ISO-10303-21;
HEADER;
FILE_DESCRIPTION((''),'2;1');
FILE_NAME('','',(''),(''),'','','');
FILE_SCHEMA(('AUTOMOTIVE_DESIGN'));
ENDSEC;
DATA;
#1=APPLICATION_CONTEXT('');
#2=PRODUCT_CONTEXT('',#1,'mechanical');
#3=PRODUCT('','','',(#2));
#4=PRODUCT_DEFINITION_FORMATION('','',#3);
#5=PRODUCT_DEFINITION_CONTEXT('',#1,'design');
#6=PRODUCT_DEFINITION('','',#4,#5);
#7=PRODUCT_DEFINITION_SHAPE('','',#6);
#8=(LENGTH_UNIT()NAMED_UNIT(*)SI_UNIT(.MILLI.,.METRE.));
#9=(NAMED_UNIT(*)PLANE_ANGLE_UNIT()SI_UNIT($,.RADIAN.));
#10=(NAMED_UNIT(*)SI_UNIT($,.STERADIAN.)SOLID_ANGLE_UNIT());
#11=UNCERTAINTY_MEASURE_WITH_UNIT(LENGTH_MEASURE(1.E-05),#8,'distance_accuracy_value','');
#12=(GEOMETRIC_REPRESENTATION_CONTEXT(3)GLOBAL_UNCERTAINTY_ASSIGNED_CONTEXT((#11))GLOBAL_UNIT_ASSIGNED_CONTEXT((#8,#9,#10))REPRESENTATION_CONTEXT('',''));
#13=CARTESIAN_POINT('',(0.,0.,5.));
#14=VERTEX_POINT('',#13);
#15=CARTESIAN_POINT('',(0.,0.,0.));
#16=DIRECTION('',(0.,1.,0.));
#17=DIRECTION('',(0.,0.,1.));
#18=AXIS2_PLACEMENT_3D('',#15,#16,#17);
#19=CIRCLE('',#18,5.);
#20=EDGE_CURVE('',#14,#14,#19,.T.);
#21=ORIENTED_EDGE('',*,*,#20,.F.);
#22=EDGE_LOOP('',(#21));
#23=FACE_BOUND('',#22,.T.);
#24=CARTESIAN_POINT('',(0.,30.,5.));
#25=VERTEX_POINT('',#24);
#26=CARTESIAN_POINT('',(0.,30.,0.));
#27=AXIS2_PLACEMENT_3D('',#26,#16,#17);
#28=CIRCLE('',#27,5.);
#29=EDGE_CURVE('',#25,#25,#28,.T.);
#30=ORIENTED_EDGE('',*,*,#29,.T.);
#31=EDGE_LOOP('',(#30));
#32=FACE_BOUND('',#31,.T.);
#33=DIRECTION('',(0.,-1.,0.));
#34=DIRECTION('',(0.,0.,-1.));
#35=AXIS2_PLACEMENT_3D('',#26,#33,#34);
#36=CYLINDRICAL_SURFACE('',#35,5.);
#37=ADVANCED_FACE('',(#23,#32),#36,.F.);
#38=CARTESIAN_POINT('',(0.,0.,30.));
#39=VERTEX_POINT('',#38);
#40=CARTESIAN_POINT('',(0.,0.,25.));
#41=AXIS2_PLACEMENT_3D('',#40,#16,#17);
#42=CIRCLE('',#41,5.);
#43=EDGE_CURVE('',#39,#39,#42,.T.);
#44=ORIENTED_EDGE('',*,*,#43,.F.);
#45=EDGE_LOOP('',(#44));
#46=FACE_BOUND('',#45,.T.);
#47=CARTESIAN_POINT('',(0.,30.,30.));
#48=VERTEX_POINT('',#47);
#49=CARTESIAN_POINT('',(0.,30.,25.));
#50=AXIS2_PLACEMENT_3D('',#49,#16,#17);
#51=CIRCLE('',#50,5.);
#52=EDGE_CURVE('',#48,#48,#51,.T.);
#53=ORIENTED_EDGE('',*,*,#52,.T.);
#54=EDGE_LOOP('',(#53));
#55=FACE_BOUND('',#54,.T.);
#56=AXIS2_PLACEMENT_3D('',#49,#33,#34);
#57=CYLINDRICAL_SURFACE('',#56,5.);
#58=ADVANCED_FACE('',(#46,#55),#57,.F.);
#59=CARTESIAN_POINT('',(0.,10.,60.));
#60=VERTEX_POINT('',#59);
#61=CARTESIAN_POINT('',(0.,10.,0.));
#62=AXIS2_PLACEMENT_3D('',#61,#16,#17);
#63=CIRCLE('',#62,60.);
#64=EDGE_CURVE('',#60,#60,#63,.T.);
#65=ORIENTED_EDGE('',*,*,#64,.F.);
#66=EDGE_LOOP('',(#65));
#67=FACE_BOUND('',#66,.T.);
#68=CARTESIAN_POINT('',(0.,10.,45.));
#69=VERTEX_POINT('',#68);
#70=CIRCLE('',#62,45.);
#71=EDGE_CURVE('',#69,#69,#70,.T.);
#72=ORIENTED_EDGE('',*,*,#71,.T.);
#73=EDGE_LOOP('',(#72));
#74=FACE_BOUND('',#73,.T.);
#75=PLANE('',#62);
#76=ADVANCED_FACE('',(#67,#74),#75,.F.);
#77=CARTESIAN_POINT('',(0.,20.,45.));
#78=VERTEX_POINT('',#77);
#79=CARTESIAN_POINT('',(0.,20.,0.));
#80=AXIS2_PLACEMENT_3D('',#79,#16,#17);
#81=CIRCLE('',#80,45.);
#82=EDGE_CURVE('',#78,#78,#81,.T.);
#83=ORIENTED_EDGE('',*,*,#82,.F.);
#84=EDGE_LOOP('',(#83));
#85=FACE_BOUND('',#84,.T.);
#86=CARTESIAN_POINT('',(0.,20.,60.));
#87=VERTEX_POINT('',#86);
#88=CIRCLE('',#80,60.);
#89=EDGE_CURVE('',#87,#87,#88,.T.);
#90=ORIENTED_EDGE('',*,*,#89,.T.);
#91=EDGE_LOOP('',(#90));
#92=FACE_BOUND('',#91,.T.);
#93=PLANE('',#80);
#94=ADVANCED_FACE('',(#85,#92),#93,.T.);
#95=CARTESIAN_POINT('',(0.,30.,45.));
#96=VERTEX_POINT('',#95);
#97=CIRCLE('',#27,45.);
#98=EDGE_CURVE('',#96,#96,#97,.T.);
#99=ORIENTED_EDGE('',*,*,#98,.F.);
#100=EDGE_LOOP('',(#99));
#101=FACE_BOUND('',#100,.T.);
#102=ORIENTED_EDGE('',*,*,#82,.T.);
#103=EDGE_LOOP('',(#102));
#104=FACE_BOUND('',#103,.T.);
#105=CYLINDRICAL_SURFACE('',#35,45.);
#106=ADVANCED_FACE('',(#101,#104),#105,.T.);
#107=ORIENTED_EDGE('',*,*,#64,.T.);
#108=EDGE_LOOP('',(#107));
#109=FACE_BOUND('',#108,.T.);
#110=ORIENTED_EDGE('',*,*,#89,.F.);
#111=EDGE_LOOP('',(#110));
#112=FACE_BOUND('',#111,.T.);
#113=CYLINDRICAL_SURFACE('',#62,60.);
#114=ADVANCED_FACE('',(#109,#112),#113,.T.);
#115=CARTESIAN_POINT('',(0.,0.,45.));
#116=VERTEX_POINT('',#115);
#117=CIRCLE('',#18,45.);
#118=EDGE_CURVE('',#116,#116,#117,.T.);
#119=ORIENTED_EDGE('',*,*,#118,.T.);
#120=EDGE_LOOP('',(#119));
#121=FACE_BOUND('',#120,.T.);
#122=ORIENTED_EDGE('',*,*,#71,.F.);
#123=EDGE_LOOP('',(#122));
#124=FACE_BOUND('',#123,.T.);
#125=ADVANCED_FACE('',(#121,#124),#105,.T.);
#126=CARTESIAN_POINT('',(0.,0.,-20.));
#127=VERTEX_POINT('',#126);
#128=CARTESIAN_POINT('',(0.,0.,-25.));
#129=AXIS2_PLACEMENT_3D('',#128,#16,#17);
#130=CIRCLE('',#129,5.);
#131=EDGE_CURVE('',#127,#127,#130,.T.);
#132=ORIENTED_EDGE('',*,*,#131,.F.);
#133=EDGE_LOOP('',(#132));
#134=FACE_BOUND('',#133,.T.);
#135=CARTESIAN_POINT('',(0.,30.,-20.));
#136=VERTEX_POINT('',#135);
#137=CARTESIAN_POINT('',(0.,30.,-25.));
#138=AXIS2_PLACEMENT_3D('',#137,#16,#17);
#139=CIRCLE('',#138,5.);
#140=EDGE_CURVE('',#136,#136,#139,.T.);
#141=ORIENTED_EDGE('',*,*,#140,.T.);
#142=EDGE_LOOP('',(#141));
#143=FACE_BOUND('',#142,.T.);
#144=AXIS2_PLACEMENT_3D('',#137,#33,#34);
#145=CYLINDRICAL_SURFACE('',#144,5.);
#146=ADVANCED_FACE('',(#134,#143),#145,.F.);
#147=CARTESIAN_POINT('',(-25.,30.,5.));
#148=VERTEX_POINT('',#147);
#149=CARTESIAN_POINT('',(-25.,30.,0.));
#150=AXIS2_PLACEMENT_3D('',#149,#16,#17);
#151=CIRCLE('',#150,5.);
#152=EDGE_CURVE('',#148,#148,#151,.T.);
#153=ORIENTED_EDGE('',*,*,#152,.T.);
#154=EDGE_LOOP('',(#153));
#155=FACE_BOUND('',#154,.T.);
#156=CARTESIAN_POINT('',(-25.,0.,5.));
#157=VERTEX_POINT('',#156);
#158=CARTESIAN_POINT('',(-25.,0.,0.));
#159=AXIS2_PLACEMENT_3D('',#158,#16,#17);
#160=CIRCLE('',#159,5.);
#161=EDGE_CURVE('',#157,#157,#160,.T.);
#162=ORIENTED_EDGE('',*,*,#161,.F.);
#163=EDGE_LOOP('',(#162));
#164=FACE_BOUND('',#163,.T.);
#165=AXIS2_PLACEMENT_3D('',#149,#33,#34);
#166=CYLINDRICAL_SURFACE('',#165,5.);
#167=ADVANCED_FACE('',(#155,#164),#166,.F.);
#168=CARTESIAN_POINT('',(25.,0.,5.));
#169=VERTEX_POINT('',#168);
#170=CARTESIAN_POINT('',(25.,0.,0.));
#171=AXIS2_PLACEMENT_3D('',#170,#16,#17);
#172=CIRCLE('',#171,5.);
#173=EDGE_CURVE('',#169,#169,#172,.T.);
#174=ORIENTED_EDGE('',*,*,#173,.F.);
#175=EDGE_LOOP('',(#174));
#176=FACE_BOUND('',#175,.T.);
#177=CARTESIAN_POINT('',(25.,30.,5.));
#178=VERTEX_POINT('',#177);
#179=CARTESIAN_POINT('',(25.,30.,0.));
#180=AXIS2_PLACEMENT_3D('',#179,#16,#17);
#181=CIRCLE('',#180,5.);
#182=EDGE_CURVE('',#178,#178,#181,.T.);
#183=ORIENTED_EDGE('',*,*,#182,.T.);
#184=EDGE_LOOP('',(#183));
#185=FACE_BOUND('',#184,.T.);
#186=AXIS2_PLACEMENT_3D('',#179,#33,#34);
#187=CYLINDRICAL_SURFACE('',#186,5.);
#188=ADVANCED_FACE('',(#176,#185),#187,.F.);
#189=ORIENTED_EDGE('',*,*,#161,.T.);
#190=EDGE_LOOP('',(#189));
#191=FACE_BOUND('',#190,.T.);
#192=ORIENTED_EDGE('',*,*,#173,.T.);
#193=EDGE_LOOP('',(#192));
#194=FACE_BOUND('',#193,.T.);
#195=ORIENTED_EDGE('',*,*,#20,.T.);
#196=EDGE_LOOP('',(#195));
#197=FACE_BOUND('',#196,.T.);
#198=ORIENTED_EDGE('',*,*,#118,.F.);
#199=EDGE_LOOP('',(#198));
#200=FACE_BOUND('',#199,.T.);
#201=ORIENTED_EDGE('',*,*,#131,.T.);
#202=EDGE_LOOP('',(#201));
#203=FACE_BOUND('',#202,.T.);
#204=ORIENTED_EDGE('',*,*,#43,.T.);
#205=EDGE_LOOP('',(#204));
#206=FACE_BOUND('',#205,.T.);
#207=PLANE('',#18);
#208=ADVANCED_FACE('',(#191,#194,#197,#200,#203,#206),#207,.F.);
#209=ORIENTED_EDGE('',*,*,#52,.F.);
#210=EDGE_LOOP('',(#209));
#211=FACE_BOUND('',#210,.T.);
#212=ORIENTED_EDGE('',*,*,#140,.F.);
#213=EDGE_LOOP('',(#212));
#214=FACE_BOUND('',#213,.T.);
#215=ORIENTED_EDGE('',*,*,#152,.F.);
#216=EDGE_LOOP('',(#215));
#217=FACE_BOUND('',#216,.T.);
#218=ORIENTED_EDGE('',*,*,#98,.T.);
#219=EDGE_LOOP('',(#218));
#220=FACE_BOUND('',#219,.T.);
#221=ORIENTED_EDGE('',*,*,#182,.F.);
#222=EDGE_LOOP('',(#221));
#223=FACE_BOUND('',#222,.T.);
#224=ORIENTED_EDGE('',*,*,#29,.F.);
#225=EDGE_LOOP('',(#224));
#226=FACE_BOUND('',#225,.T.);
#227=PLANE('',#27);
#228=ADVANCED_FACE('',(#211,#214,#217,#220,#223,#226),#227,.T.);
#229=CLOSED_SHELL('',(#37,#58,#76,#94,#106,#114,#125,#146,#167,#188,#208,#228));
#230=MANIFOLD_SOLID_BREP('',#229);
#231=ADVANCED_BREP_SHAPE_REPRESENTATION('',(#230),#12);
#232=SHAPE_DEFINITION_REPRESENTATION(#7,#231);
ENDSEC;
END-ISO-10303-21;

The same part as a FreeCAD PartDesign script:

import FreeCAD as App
import Part
import Sketcher

doc = App.newDocument("Part")
body = doc.addObject("PartDesign::Body", "Body")

# Sketch on XZ plane
sketch1 = doc.addObject("Sketcher::SketchObject", "Sketch")
body.addObject(sketch1)
sketch1.AttachmentSupport = (doc.XZ_Plane, [""])
sketch1.MapMode = "FlatFace"
sketch1.addGeometry([
    Part.Circle(App.Vector(0, 0, 0), App.Vector(0, 0, 1), 45),  # 0
    Part.Circle(App.Vector(0, 25, 0), App.Vector(0, 0, 1), 5),  # 1
    Part.Circle(App.Vector(-25, 0, 0), App.Vector(0, 0, 1), 5),  # 2
    Part.Circle(App.Vector(0, 0, 0), App.Vector(0, 0, 1), 5),  # 3
    Part.Circle(App.Vector(25, 0, 0), App.Vector(0, 0, 1), 5),  # 4
    Part.Circle(App.Vector(0, -25, 0), App.Vector(0, 0, 1), 5),  # 5
], False)
sketch1.addConstraint([
    Sketcher.Constraint("Coincident", 0, 3, -1, 1),
    Sketcher.Constraint("Coincident", 3, 3, -1, 1),
    Sketcher.Constraint("Equal", 1, 2),
    Sketcher.Constraint("Equal", 2, 3),
    Sketcher.Constraint("Equal", 3, 4),
    Sketcher.Constraint("Equal", 4, 5),
    Sketcher.Constraint("Symmetric", 2, 3, 4, 3, -1, 1),
    Sketcher.Constraint("Symmetric", 1, 3, 5, 3, -1, 1),
    Sketcher.Constraint("PointOnObject", 1, 3, -2),
    Sketcher.Constraint("PointOnObject", 2, 3, -1),
    Sketcher.Constraint("Diameter", 0, 90.0),
    Sketcher.Constraint("Diameter", 1, 10.0),
    Sketcher.Constraint("DistanceY", -1, 1, 1, 3, 25.0),
    Sketcher.Constraint("DistanceX", 2, 3, -1, 1, 25.0),
])
pad1 = doc.addObject("PartDesign::Pad", "Pad")
body.addObject(pad1)
pad1.Profile = sketch1
pad1.Length = 30
pad1.Reversed = True

# Sketch on XZ plane
sketch2 = doc.addObject("Sketcher::SketchObject", "Sketch001")
body.addObject(sketch2)
sketch2.AttachmentSupport = (doc.XZ_Plane, [""])
sketch2.MapMode = "FlatFace"
sketch2.AttachmentOffset = App.Placement(App.Vector(0, 0, -20), App.Rotation())
sketch2.addGeometry([
    Part.Circle(App.Vector(0, 0, 0), App.Vector(0, 0, 1), 60),
    Part.Circle(App.Vector(0, 0, 0), App.Vector(0, 0, 1), 45),
], False)
sketch2.addConstraint([
    Sketcher.Constraint("Coincident", 0, 3, -1, 1),
    Sketcher.Constraint("Coincident", 1, 3, -1, 1),
    Sketcher.Constraint("Diameter", 0, 120.0),
    Sketcher.Constraint("Diameter", 1, 90.0),
])
pad2 = doc.addObject("PartDesign::Pad", "Pad001")
body.addObject(pad2)
pad2.Profile = sketch2
pad2.Length = 10

doc.recompute()
